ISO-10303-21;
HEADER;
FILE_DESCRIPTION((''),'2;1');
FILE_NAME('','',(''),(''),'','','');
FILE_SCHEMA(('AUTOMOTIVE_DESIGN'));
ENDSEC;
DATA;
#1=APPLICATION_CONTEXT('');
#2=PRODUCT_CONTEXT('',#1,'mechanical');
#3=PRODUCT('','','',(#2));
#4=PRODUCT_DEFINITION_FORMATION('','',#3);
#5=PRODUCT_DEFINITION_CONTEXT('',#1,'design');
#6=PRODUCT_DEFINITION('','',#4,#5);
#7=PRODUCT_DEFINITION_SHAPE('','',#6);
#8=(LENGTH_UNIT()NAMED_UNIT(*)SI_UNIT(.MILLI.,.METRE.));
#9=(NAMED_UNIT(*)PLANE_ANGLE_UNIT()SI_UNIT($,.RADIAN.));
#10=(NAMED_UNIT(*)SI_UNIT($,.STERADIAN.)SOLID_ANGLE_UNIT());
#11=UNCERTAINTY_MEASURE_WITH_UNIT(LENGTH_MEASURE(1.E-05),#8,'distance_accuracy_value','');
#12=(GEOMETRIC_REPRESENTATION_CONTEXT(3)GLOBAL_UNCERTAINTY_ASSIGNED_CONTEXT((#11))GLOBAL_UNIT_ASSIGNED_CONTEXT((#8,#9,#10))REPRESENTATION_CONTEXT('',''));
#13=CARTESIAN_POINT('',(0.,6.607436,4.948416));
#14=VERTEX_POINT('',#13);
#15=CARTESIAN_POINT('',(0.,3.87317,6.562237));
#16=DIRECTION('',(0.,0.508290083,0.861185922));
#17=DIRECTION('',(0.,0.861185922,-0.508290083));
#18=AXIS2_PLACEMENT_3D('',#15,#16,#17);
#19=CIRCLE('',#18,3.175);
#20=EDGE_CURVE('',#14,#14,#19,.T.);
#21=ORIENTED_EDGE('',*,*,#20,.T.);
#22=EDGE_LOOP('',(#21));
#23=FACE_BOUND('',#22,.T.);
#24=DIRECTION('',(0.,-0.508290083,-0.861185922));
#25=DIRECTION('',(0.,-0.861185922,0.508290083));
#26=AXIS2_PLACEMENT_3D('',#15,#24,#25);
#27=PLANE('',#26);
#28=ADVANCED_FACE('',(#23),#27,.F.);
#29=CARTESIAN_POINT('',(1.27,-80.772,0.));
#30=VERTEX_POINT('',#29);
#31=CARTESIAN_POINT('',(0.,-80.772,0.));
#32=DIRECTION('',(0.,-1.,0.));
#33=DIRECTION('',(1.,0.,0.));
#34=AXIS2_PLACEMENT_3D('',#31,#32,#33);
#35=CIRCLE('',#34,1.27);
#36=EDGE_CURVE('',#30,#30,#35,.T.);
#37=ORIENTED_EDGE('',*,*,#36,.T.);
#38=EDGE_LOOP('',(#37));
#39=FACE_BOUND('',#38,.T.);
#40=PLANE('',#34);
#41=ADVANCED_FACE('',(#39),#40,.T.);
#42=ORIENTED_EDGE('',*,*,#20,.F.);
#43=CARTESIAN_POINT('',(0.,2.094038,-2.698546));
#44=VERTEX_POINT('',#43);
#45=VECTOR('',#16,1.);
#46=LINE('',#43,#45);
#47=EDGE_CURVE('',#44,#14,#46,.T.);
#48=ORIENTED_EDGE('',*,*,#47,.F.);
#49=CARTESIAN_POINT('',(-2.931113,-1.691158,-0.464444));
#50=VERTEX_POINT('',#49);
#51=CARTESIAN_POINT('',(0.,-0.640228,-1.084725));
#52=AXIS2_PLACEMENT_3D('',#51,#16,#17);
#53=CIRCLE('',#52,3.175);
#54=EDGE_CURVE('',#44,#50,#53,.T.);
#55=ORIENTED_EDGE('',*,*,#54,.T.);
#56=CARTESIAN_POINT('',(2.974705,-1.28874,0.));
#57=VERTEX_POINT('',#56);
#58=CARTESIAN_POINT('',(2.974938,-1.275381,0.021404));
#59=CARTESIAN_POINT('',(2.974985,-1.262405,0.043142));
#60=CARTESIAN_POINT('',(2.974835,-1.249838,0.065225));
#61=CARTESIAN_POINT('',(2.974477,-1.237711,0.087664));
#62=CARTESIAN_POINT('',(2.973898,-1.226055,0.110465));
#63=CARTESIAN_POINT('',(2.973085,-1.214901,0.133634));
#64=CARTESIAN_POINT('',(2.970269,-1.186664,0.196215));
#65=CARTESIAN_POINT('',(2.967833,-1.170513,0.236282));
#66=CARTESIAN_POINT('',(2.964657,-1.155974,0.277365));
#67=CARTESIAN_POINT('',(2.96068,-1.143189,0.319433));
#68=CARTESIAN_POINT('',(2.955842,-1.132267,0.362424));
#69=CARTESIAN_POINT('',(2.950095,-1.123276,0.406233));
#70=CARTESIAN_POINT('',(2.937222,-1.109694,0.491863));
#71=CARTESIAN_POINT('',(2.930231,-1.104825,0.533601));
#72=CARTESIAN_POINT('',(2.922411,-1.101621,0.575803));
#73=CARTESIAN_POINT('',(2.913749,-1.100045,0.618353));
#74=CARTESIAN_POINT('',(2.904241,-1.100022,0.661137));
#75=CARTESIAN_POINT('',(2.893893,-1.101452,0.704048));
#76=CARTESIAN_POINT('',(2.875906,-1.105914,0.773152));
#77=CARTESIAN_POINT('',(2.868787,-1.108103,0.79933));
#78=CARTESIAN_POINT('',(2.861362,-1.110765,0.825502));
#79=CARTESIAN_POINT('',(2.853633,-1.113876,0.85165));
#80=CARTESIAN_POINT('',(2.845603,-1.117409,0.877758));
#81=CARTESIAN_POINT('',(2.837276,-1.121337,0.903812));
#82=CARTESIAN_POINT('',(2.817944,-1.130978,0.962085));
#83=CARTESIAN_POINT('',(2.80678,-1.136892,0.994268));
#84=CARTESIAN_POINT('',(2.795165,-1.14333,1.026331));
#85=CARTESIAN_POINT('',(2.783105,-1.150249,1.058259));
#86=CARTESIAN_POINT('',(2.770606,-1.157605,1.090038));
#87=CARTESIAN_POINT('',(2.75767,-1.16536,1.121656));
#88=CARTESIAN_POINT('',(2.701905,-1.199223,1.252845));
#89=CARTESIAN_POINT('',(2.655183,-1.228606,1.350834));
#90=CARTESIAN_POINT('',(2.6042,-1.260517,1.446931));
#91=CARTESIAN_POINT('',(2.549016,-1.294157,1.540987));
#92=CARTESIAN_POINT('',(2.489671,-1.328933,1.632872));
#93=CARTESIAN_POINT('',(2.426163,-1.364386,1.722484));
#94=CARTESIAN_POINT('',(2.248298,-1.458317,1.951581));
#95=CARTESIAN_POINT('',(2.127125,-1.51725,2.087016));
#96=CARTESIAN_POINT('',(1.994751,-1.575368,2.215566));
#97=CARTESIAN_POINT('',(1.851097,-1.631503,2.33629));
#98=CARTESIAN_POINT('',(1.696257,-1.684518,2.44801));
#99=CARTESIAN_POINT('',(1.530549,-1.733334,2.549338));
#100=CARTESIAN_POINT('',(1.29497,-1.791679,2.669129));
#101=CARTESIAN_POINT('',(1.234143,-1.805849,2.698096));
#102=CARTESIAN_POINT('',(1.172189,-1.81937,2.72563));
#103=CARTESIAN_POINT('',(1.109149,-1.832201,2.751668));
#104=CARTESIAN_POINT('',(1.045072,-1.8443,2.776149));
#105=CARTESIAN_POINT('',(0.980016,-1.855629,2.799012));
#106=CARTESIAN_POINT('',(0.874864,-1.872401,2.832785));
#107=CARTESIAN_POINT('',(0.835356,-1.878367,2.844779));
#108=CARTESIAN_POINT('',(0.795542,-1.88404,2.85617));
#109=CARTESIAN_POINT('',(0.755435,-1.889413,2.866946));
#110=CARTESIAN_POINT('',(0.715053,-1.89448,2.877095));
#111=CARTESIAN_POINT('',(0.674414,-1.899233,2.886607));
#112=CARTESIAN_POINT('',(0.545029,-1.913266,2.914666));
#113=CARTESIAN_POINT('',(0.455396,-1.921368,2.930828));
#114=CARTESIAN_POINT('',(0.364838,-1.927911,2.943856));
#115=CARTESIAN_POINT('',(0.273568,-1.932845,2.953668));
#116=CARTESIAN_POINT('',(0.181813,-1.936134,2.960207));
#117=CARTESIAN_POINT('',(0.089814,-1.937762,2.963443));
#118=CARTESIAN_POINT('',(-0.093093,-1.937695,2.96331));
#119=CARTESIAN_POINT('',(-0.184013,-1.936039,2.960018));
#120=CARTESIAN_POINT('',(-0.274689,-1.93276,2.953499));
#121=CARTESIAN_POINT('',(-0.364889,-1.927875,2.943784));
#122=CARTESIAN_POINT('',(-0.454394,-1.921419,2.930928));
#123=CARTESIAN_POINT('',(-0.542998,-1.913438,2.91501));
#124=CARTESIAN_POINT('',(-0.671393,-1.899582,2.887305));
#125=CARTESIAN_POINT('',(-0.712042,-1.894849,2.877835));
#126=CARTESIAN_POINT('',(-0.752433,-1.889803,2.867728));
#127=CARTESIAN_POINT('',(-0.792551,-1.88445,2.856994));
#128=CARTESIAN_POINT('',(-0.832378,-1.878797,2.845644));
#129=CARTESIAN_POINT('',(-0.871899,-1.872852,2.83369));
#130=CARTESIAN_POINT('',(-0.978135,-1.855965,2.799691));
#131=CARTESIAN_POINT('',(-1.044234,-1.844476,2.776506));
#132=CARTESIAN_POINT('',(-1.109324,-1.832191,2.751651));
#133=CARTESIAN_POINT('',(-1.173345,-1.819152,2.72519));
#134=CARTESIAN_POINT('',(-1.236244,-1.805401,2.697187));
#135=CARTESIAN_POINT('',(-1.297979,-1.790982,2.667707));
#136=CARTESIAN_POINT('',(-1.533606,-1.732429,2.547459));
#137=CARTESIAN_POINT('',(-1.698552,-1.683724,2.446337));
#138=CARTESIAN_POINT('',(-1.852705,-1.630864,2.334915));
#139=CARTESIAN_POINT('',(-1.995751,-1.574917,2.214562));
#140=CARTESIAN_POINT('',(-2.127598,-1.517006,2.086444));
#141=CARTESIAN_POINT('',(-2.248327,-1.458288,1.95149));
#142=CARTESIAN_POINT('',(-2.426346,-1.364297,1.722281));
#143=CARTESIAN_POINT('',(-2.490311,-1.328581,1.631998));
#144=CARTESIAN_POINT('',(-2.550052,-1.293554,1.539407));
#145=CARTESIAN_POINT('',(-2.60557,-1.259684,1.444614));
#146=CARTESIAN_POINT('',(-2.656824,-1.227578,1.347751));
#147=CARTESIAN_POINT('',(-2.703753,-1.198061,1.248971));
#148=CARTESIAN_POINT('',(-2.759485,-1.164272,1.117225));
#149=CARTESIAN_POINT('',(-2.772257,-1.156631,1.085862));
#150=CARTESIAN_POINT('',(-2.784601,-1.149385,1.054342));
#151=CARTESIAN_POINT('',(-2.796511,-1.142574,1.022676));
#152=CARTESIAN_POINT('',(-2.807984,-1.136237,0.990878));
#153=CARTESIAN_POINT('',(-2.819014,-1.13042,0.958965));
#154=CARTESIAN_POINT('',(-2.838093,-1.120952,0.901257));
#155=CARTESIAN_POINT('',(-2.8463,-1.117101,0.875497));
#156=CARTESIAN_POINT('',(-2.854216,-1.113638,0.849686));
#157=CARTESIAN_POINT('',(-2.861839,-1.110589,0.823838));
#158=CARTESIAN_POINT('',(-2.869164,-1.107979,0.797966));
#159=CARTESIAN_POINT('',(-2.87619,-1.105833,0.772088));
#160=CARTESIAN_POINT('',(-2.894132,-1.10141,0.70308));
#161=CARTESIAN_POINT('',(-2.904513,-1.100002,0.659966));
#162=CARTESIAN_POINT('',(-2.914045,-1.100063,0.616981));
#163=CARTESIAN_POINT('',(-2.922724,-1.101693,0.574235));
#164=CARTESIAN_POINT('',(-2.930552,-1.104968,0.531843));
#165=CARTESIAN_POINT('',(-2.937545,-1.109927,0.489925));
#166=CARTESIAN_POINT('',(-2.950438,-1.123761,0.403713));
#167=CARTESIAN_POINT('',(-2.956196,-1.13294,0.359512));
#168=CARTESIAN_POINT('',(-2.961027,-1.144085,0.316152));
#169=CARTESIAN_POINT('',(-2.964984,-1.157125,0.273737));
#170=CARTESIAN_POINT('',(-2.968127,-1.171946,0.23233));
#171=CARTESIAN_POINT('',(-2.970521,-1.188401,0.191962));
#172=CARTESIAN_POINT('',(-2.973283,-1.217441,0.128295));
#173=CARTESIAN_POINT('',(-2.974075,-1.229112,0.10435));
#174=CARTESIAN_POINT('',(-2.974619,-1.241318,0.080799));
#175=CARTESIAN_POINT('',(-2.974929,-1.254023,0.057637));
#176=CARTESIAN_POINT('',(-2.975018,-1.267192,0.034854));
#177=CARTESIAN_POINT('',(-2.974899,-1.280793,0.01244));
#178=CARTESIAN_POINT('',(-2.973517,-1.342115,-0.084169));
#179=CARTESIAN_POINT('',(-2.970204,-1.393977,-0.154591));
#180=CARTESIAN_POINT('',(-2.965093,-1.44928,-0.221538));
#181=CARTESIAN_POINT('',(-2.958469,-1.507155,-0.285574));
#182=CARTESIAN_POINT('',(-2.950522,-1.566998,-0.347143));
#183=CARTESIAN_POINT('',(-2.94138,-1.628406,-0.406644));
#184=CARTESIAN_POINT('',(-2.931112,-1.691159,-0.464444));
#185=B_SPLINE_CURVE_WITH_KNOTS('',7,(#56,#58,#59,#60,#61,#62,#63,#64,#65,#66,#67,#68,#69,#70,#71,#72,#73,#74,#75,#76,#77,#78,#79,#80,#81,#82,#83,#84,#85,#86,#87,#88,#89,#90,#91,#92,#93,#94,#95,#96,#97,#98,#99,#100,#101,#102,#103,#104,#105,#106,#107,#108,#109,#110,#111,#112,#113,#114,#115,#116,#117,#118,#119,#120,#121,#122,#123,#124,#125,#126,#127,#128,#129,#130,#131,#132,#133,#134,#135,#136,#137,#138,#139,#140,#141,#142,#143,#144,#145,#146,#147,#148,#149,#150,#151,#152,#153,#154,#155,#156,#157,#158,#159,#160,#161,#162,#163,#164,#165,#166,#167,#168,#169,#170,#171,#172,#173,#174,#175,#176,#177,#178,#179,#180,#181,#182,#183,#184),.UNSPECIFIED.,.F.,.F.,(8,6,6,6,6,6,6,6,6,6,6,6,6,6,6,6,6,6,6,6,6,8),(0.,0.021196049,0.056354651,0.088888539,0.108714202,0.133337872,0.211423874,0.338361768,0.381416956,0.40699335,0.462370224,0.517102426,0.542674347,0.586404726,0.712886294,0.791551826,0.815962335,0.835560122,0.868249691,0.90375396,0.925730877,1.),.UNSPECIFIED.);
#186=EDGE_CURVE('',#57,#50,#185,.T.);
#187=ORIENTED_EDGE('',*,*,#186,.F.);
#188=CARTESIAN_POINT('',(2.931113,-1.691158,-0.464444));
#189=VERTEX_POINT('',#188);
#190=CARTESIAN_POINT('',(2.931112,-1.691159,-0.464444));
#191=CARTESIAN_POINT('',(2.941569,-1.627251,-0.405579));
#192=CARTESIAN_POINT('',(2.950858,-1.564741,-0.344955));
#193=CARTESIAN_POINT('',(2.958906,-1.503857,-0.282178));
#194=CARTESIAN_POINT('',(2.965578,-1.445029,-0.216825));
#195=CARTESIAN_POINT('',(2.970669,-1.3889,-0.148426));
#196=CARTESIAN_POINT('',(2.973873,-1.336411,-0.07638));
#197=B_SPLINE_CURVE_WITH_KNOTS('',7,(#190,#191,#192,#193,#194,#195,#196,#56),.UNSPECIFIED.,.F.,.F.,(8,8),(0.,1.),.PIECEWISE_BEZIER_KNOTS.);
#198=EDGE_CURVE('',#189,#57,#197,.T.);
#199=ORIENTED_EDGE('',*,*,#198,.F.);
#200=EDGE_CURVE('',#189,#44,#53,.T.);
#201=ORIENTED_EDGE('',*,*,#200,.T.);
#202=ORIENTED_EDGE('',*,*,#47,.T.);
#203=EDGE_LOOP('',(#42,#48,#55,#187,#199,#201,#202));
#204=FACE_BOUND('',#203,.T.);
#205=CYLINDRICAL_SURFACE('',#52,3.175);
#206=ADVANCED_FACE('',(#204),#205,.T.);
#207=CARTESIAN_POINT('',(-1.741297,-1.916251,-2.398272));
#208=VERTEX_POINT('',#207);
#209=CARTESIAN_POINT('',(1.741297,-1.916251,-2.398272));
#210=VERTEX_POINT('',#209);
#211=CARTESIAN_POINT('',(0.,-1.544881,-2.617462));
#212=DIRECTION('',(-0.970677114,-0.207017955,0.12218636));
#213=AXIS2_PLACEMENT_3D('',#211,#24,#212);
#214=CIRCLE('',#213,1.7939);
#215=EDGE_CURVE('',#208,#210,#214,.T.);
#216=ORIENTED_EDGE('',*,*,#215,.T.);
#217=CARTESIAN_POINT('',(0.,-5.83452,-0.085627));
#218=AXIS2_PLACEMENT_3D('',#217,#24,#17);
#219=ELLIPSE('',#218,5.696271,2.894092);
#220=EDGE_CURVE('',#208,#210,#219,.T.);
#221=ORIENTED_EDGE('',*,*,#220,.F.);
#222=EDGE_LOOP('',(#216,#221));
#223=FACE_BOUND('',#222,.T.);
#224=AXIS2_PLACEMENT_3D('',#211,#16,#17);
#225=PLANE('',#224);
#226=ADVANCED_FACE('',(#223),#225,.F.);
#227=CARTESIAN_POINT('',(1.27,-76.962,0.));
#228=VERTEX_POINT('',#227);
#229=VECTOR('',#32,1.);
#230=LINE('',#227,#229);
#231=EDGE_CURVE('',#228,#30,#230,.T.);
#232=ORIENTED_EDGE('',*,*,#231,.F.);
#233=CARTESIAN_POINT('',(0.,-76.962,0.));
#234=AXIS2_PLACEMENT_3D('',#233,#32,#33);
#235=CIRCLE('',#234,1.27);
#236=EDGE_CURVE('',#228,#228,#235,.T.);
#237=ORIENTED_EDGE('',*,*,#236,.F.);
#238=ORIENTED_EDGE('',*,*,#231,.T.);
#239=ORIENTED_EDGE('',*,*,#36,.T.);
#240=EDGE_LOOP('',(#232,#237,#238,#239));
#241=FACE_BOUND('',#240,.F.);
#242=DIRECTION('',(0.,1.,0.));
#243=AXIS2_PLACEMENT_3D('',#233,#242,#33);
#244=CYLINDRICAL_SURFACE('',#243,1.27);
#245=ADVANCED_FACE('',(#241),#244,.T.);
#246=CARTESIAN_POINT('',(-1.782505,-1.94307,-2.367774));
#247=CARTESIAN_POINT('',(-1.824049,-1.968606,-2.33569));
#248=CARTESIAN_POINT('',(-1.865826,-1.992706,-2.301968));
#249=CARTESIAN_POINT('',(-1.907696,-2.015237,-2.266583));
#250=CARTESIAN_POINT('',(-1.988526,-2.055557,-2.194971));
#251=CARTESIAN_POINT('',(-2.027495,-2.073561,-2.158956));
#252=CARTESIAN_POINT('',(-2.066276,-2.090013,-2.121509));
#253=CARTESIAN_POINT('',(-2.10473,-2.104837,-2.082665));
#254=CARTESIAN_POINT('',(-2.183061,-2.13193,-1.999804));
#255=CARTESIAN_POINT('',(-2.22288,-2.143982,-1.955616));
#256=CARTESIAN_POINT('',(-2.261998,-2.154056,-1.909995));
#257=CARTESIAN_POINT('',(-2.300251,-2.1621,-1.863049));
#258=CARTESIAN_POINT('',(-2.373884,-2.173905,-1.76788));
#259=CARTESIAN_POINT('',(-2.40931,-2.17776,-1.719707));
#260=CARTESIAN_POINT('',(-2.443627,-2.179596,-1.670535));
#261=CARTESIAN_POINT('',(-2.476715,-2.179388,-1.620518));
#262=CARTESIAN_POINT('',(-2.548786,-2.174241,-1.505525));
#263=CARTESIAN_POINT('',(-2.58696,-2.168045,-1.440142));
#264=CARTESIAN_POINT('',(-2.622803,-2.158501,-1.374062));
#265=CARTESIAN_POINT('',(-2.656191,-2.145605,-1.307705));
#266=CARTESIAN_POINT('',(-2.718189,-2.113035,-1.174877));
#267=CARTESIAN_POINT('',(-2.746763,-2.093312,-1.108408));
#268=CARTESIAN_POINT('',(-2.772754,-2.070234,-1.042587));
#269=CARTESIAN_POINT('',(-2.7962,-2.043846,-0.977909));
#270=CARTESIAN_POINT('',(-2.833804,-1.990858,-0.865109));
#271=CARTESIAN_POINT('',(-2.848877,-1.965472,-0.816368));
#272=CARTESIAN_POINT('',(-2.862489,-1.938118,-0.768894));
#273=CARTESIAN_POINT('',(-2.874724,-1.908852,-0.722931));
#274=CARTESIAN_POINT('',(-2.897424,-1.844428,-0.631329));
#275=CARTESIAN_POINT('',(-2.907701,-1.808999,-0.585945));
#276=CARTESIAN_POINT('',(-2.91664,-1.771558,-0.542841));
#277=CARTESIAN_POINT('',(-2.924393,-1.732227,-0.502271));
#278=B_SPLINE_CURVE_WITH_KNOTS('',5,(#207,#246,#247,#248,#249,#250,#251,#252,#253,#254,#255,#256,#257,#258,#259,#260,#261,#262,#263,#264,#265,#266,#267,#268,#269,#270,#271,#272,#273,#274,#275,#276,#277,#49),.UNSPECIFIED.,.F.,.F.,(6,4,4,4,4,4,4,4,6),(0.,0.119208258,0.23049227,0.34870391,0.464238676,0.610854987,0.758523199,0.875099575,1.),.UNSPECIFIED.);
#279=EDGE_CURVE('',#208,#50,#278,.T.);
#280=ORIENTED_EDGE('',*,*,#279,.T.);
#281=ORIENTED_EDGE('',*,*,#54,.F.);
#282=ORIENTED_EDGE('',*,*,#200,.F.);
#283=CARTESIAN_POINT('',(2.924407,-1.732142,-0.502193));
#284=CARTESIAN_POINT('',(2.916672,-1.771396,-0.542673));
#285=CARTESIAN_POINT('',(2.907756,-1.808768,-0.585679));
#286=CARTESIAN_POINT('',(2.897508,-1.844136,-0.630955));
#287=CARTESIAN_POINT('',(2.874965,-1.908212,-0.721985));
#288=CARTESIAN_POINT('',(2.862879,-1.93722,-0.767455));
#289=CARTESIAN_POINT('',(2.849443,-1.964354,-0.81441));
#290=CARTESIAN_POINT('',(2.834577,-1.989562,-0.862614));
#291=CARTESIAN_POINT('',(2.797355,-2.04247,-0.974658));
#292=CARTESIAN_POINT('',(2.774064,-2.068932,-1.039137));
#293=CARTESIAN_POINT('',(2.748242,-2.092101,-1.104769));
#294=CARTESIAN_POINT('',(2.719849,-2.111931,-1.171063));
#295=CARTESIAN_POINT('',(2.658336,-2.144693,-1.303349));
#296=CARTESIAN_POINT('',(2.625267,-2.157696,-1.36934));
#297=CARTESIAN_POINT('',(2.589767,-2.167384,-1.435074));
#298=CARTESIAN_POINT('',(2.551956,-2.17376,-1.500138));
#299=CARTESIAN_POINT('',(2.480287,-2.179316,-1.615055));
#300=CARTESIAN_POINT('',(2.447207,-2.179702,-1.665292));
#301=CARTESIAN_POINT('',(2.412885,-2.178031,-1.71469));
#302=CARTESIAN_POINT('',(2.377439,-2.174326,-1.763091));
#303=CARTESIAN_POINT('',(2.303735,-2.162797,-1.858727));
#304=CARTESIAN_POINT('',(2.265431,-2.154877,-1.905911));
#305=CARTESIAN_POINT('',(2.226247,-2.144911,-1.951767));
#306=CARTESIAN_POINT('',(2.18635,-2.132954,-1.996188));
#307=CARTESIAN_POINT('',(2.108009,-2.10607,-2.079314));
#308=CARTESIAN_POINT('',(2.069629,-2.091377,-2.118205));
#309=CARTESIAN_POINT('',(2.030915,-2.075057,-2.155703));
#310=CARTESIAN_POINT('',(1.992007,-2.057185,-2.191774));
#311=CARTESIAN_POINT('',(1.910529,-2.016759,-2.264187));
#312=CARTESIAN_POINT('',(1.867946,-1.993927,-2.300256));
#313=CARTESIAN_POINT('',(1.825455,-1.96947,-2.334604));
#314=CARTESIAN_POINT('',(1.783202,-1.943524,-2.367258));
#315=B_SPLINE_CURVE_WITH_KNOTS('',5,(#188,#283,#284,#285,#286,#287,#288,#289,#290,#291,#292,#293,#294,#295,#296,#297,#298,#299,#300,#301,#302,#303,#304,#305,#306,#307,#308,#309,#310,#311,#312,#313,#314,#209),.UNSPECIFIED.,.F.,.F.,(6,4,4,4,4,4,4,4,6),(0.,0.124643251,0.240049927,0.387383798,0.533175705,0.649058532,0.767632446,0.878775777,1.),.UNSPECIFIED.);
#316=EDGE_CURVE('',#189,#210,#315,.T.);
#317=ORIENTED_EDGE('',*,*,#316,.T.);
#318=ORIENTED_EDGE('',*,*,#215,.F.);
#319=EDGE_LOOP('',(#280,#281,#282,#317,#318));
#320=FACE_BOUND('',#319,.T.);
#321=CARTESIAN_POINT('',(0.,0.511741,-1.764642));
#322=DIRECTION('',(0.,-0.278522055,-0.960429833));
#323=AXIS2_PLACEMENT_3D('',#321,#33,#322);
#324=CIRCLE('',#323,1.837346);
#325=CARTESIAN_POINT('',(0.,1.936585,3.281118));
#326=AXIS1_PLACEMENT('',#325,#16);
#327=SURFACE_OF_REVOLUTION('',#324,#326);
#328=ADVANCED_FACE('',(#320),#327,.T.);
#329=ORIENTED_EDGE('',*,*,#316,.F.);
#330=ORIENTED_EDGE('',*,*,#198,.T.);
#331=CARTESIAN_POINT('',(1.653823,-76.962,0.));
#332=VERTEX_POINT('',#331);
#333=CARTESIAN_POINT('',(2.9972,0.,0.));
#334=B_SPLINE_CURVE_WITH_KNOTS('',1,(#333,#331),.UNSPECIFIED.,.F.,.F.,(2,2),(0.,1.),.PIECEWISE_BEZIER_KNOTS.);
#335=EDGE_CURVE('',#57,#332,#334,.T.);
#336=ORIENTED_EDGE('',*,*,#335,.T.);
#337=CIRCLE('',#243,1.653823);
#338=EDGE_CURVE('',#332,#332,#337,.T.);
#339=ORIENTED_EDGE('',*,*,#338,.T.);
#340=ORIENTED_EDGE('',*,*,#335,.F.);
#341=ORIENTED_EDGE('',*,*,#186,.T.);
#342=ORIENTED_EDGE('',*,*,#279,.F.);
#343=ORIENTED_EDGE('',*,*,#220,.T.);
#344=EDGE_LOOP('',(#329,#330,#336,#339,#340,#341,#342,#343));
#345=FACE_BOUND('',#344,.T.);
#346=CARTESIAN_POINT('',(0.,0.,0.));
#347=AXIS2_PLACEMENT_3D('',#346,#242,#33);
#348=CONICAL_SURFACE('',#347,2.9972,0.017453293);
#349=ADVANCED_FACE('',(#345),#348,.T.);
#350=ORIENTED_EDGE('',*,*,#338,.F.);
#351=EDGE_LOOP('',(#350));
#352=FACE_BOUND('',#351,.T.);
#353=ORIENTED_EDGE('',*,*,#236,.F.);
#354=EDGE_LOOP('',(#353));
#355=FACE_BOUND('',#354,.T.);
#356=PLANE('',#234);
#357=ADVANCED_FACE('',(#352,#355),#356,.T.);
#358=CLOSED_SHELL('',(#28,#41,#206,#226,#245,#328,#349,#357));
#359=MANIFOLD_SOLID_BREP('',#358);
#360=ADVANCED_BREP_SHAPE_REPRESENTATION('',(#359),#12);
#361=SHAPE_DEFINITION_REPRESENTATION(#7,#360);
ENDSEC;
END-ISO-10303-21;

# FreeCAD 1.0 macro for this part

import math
import FreeCAD as App
import Part
import Sketcher
Q = App.Units.Quantity

doc = App.newDocument("Part")
body = doc.addObject("PartDesign::Body", "Body")

sketch1 = body.newObject("Sketcher::SketchObject", "Sketch")
sketch1.AttachmentSupport = (doc.getObject("XZ_Plane"), [""])
sketch1.MapMode = "FlatFace"
sketch1.addGeometry(Part.Circle(App.Vector(0, 0, 0), App.Vector(0, 0, 1), 3), False)
sketch1.addConstraint(Sketcher.Constraint("Coincident", 0, 3, -1, 1))
sketch1.addConstraint(Sketcher.Constraint("Diameter", 0, Q("0.236 in")))
pad1 = body.newObject("PartDesign::Pad", "Pad")
pad1.Profile = sketch1
pad1.Length = Q("3.03 in")
pad1.TaperAngle = -1

sketch2 = body.newObject("Sketcher::SketchObject", "Sketch001")
sketch2.AttachmentSupport = (doc.getObject("YZ_Plane"), [""])
sketch2.MapMode = "FlatFace"
sketch2.addGeometry(Part.LineSegment(App.Vector(0.3, 0.5, 0), App.Vector(0, 0, 0)), False)
sketch2.addGeometry(Part.LineSegment(App.Vector(0, 0, 0), App.Vector(-1.5, -2.6, 0)), False)
sketch2.addGeometry(Part.LineSegment(App.Vector(-1.5, -2.6, 0), App.Vector(0, -3.5, 0)), False)
sketch2.addGeometry(Part.ArcOfCircle(Part.Circle(App.Vector(0.5, -1.8, 0), App.Vector(0, 0, 1), 1.8), math.radians(-106), math.radians(-31)), False)
sketch2.addGeometry(Part.LineSegment(App.Vector(2.1, -2.7, 0), App.Vector(6.6, 4.9, 0)), False)
sketch2.addGeometry(Part.LineSegment(App.Vector(6.6, 4.9, 0), App.Vector(3.9, 6.6, 0)), False)
sketch2.addGeometry(Part.LineSegment(App.Vector(3.9, 6.6, 0), App.Vector(0.3, 0.5, 0)), False)
sketch2.addGeometry(Part.LineSegment(App.Vector(-1.5, -2.6, 0), App.Vector(3.9, 6.6, 0)), True)
sketch2.addConstraint(Sketcher.Constraint("Coincident", 0, 2, 1, 1))
sketch2.addConstraint(Sketcher.Constraint("Coincident", 1, 2, 2, 1))
sketch2.addConstraint(Sketcher.Constraint("Coincident", 2, 2, 3, 1))
sketch2.addConstraint(Sketcher.Constraint("Tangent", 3, 2, 4, 1))
sketch2.addConstraint(Sketcher.Constraint("Coincident", 4, 2, 5, 1))
sketch2.addConstraint(Sketcher.Constraint("Coincident", 5, 2, 6, 1))
sketch2.addConstraint(Sketcher.Constraint("Coincident", 6, 2, 0, 1))
sketch2.addConstraint(Sketcher.Constraint("Coincident", 0, 2, -1, 1))
sketch2.addConstraint(Sketcher.Constraint("Coincident", 7, 1, 1, 2))
sketch2.addConstraint(Sketcher.Constraint("Coincident", 7, 2, 5, 2))
sketch2.addConstraint(Sketcher.Constraint("PointOnObject", 2, 2, -2))
sketch2.addConstraint(Sketcher.Constraint("Parallel", 0, 1))
sketch2.addConstraint(Sketcher.Constraint("Perpendicular", 1, 2))
sketch2.addConstraint(Sketcher.Constraint("Perpendicular", 2, 4))
sketch2.addConstraint(Sketcher.Constraint("Perpendicular", 4, 5))
sketch2.addConstraint(Sketcher.Constraint("Perpendicular", 5, 6))
sketch2.addConstraint(Sketcher.Constraint("Angle", 0, Q("-120.55 deg")))
sketch2.addConstraint(Sketcher.Constraint("Distance", 5, Q("0.125 in")))
sketch2.addConstraint(Sketcher.Constraint("Radius", 3, Q("1.837346 mm")))
sketch2.addConstraint(Sketcher.Constraint("Distance", 2, Q("1.7939 mm")))
sketch2.addConstraint(Sketcher.Constraint("DistanceX", 3, 2, 4, 2, Q("4.513398 mm")))
sketch2.addConstraint(Sketcher.Constraint("Distance", 0, Q("0.579641 mm")))
revolution = body.newObject("PartDesign::Revolution", "Revolution")
revolution.Profile = sketch2
revolution.ReferenceAxis = (sketch2, ["Axis0"])
revolution.Angle = 360

sketch3 = body.newObject("Sketcher::SketchObject", "Sketch002")
sketch3.AttachmentSupport = (doc.getObject("XZ_Plane"), [""])
sketch3.MapMode = "FlatFace"
sketch3.AttachmentOffset = App.Placement(App.Vector(0, 0, 3.03 * 25.4), App.Rotation())
sketch3.addGeometry(Part.Circle(App.Vector(0, 0, 0), App.Vector(0, 0, 1), 1.3), False)
sketch3.addConstraint(Sketcher.Constraint("Coincident", 0, 3, -1, 1))
sketch3.addConstraint(Sketcher.Constraint("Diameter", 0, Q("0.1 in")))
pad2 = body.newObject("PartDesign::Pad", "Pad001")
pad2.Profile = sketch3
pad2.Length = Q("0.15 in")

doc.recompute()
